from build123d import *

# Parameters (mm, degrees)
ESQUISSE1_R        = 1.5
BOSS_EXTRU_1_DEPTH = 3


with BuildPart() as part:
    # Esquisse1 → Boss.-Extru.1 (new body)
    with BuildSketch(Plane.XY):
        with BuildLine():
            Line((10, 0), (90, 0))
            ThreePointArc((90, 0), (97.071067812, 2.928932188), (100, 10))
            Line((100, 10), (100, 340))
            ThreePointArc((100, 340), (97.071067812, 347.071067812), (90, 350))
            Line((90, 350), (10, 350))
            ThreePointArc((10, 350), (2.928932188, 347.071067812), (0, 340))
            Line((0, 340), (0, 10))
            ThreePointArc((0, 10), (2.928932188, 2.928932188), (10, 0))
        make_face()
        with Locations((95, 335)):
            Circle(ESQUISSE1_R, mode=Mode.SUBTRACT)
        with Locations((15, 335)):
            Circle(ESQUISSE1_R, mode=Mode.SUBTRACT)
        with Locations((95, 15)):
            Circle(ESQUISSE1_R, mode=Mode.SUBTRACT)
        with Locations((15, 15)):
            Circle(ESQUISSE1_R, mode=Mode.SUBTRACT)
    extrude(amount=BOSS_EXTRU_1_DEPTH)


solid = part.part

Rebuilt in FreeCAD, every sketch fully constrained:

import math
import FreeCAD as App
import Part
import Sketcher
from FreeCAD import Vector
Q = App.Units.Quantity

doc = App.newDocument("Part")
body = doc.addObject("PartDesign::Body", "Body")

# Sketch on XY plane
sketch1 = body.newObject("Sketcher::SketchObject", "Sketch")
sketch1.AttachmentSupport = (doc.getObject("XY_Plane"), [""])
sketch1.MapMode = "FlatFace"
sketch1.addGeometry([
    Part.LineSegment(Vector(10, 0, 0), Vector(90, 0, 0)),  # 0
    Part.ArcOfCircle(Part.Circle(Vector(90, 10, 0), Vector(0, 0, 1), 10), math.radians(-90), math.radians(0)),  # 1
    Part.LineSegment(Vector(100, 10, 0), Vector(100, 340, 0)),  # 2
    Part.ArcOfCircle(Part.Circle(Vector(90, 340, 0), Vector(0, 0, 1), 10), math.radians(0), math.radians(90)),  # 3
    Part.LineSegment(Vector(90, 350, 0), Vector(10, 350, 0)),  # 4
    Part.ArcOfCircle(Part.Circle(Vector(10, 340, 0), Vector(0, 0, 1), 10), math.radians(90), math.radians(180)),  # 5
    Part.LineSegment(Vector(0, 340, 0), Vector(0, 10, 0)),  # 6
    Part.ArcOfCircle(Part.Circle(Vector(10, 10, 0), Vector(0, 0, 1), 10), math.radians(180), math.radians(270)),  # 7
    Part.Circle(Vector(15, 15, 0), Vector(0, 0, 1), 1.5),  # 8
    Part.Circle(Vector(95, 15, 0), Vector(0, 0, 1), 1.5),  # 9
    Part.Circle(Vector(15, 335, 0), Vector(0, 0, 1), 1.5),  # 10
    Part.Circle(Vector(95, 335, 0), Vector(0, 0, 1), 1.5),  # 11
], False)
sketch1.addConstraint([
    Sketcher.Constraint("Tangent", 0, 2, 1, 1),
    Sketcher.Constraint("Tangent", 1, 2, 2, 1),
    Sketcher.Constraint("Tangent", 2, 2, 3, 1),
    Sketcher.Constraint("Tangent", 3, 2, 4, 1),
    Sketcher.Constraint("Tangent", 4, 2, 5, 1),
    Sketcher.Constraint("Tangent", 5, 2, 6, 1),
    Sketcher.Constraint("Tangent", 6, 2, 7, 1),
    Sketcher.Constraint("Tangent", 7, 2, 0, 1),
    Sketcher.Constraint("Horizontal", 0),
    Sketcher.Constraint("Vertical", 2),
    Sketcher.Constraint("Horizontal", 4),
    Sketcher.Constraint("Vertical", 6),
    Sketcher.Constraint("Equal", 1, 3),
    Sketcher.Constraint("Equal", 3, 5),
    Sketcher.Constraint("Equal", 5, 7),
    Sketcher.Constraint("Equal", 8, 9),
    Sketcher.Constraint("Equal", 9, 10),
    Sketcher.Constraint("Equal", 10, 11),
    Sketcher.Constraint("PointOnObject", 0, 2, -1),
    Sketcher.Constraint("PointOnObject", 5, 2, -2),
    Sketcher.Constraint("Horizontal", 8, 3, 9, 3),
    Sketcher.Constraint("Horizontal", 10, 3, 11, 3),
    Sketcher.Constraint("Vertical", 8, 3, 10, 3),
    Sketcher.Constraint("Vertical", 9, 3, 11, 3),
    Sketcher.Constraint("Diameter", 8, Q("3 mm")),
    Sketcher.Constraint("Radius", 1, Q("10 mm")),
    Sketcher.Constraint("DistanceX", 0, 1, 0, 2, Q("80 mm")),
    Sketcher.Constraint("DistanceY", 2, 1, 2, 2, Q("330 mm")),
    Sketcher.Constraint("DistanceX", -1, 1, 8, 3, Q("15 mm")),
    Sketcher.Constraint("DistanceY", -1, 1, 8, 3, Q("15 mm")),
    Sketcher.Constraint("DistanceX", -1, 1, 9, 3, Q("95 mm")),
    Sketcher.Constraint("DistanceY", -1, 1, 10, 3, Q("335 mm")),
])
pad1 = body.newObject("PartDesign::Pad", "Pad")
pad1.Profile = sketch1
pad1.Length = 3

doc.recompute()
